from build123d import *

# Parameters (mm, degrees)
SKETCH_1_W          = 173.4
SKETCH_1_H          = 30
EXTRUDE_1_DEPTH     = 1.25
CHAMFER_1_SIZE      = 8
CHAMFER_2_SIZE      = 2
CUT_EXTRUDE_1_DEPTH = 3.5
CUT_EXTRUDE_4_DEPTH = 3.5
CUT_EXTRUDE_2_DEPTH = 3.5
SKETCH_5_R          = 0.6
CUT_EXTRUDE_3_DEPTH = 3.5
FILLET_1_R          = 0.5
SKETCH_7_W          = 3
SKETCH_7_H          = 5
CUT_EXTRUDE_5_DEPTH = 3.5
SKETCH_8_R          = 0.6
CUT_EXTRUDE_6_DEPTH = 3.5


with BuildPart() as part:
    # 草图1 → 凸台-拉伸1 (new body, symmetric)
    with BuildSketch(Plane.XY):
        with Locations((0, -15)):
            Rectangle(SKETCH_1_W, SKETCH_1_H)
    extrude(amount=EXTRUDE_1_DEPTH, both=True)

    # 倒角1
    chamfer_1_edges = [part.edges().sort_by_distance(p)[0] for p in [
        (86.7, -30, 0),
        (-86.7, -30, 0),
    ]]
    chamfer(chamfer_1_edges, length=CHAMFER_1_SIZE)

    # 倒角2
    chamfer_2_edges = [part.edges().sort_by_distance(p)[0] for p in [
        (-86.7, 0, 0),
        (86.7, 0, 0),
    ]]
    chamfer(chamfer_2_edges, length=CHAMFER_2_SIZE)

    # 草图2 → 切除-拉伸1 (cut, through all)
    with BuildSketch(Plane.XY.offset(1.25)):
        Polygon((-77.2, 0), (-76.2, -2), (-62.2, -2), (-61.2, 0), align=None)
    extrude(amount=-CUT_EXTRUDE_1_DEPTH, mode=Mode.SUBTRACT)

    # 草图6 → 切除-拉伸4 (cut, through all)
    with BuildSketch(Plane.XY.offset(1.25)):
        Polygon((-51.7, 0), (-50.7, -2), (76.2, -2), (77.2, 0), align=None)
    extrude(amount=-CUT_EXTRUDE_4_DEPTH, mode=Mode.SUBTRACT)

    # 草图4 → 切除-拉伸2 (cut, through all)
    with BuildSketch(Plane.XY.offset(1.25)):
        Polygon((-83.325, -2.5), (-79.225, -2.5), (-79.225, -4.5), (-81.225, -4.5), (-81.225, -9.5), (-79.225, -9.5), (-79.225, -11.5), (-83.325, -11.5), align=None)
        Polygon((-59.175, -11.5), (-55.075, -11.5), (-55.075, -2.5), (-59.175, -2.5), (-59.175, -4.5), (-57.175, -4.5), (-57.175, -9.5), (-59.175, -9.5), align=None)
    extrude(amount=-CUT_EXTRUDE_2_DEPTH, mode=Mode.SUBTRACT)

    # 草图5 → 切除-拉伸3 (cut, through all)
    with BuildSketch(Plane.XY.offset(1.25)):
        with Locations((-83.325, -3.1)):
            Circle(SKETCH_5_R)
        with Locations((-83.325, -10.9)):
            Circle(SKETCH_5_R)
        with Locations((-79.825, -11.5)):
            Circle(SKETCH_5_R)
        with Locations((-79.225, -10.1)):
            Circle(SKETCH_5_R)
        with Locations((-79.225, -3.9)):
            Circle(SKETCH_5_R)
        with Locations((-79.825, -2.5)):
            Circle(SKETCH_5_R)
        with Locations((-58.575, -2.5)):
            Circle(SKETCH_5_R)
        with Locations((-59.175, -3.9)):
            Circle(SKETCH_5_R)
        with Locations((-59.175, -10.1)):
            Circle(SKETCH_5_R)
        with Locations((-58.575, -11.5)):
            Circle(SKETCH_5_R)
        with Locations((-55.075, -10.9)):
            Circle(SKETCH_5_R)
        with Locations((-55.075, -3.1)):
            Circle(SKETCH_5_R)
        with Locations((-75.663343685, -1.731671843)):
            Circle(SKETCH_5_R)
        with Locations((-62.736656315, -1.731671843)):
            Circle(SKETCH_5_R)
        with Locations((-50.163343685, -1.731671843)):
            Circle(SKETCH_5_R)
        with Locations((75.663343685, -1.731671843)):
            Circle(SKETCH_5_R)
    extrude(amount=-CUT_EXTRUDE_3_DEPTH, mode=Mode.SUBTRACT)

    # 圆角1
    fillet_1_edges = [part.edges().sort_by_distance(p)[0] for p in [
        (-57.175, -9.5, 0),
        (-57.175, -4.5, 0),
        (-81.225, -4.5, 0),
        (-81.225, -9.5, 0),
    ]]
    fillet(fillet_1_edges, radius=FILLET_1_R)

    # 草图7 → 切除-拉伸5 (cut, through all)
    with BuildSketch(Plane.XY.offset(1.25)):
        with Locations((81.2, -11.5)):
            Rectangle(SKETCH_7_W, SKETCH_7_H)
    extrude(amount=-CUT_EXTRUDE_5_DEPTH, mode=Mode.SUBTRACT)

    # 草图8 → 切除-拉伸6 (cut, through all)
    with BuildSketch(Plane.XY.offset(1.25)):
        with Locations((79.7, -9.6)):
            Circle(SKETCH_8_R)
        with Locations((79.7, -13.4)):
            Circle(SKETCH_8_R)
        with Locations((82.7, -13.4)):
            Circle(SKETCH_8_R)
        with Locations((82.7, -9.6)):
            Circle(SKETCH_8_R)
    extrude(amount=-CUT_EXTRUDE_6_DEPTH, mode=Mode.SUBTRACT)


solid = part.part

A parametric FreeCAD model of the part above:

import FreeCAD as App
import Part
import Sketcher

V = App.Vector
Q = App.Units.Quantity


def edges_at(feature, points):
    """Names of the edges that pass closest to the given points."""
    edges = feature.Shape.Edges
    near = lambda p: min(range(len(edges)), key=lambda i: edges[i].distToShape(Part.Vertex(*p))[0])
    return sorted({f"Edge{near(p) + 1}" for p in points})

doc = App.newDocument("Part")
body = doc.addObject("PartDesign::Body", "Body")

sketch1 = body.newObject("Sketcher::SketchObject", "Sketch")
sketch1.AttachmentSupport = (doc.getObject("XY_Plane"), [""])
sketch1.MapMode = "FlatFace"
sketch1.addGeometry([
    Part.LineSegment(V(-87, 0, 0), V(-87, -30, 0)),
    Part.LineSegment(V(-87, -30, 0), V(87, -30, 0)),
    Part.LineSegment(V(87, -30, 0), V(87, 0, 0)),
    Part.LineSegment(V(87, 0, 0), V(-87, 0, 0)),
], False)
sketch1.addConstraint([
    Sketcher.Constraint("Coincident", 0, 2, 1, 1),
    Sketcher.Constraint("Coincident", 1, 2, 2, 1),
    Sketcher.Constraint("Coincident", 2, 2, 3, 1),
    Sketcher.Constraint("Coincident", 3, 2, 0, 1),
    Sketcher.Constraint("Vertical", 0),
    Sketcher.Constraint("Horizontal", 1),
    Sketcher.Constraint("Vertical", 2),
    Sketcher.Constraint("Horizontal", 3),
    Sketcher.Constraint("Symmetric", 2, 2, 3, 2, -1, 1),
    Sketcher.Constraint("DistanceY", 0, 2, 0, 1, Q("30 mm")),
    Sketcher.Constraint("DistanceX", 1, 1, 1, 2, Q("173.4 mm")),
])
pad1 = body.newObject("PartDesign::Pad", "Pad")
pad1.Profile = sketch1
pad1.Length = 2.5
pad1.Midplane = True
doc.recompute()

chamfer = body.newObject("PartDesign::Chamfer", "Chamfer")
chamfer.Base = (pad1, edges_at(pad1, [(86.7, -30, 0), (-86.7, -30, 0)]))
chamfer.Size = 8
doc.recompute()

chamfer2 = body.newObject("PartDesign::Chamfer", "Chamfer001")
chamfer2.Base = (chamfer, edges_at(chamfer, [(-86.7, 0, 0), (86.7, 0, 0)]))
chamfer2.Size = 2

sketch2 = body.newObject("Sketcher::SketchObject", "Sketch001")
sketch2.AttachmentSupport = (doc.getObject("XY_Plane"), [""])
sketch2.MapMode = "FlatFace"
sketch2.AttachmentOffset = App.Placement(V(0, 0, 1.25), App.Rotation())
sketch2.addGeometry([
    Part.LineSegment(V(-77.2, 0, 0), V(-76.2, -2, 0)),
    Part.LineSegment(V(-76.2, -2, 0), V(-62.2, -2, 0)),
    Part.LineSegment(V(-62.2, -2, 0), V(-61.2, 0, 0)),
    Part.LineSegment(V(-61.2, 0, 0), V(-77.2, 0, 0)),
], False)
sketch2.addConstraint([
    Sketcher.Constraint("Coincident", 0, 2, 1, 1),
    Sketcher.Constraint("Coincident", 1, 2, 2, 1),
    Sketcher.Constraint("Coincident", 2, 2, 3, 1),
    Sketcher.Constraint("Coincident", 3, 2, 0, 1),
    Sketcher.Constraint("Horizontal", 1),
    Sketcher.Constraint("Horizontal", 3),
    Sketcher.Constraint("PointOnObject", 2, 2, -1),
    Sketcher.Constraint("Equal", 0, 2),
    Sketcher.Constraint("DistanceX", 1, 1, 1, 2, Q("14 mm")),
    Sketcher.Constraint("DistanceX", 3, 2, 3, 1, Q("16 mm")),
    Sketcher.Constraint("DistanceY", 0, 2, -1, 1, Q("2 mm")),
    Sketcher.Constraint("DistanceX", 0, 2, -1, 1, Q("76.2 mm")),
])
pocket1 = body.newObject("PartDesign::Pocket", "Pocket")
pocket1.Profile = sketch2
pocket1.Type = "ThroughAll"

sketch3 = body.newObject("Sketcher::SketchObject", "Sketch002")
sketch3.AttachmentSupport = (doc.getObject("XY_Plane"), [""])
sketch3.MapMode = "FlatFace"
sketch3.AttachmentOffset = App.Placement(V(0, 0, 1.25), App.Rotation())
sketch3.addGeometry([
    Part.LineSegment(V(-51.7, 0, 0), V(-50.7, -2, 0)),
    Part.LineSegment(V(-50.7, -2, 0), V(76.2, -2, 0)),
    Part.LineSegment(V(76.2, -2, 0), V(77.2, 0, 0)),
    Part.LineSegment(V(77.2, 0, 0), V(-51.7, 0, 0)),
], False)
sketch3.addConstraint([
    Sketcher.Constraint("Coincident", 0, 2, 1, 1),
    Sketcher.Constraint("Coincident", 1, 2, 2, 1),
    Sketcher.Constraint("Coincident", 2, 2, 3, 1),
    Sketcher.Constraint("Coincident", 3, 2, 0, 1),
    Sketcher.Constraint("Horizontal", 1),
    Sketcher.Constraint("Horizontal", 3),
    Sketcher.Constraint("PointOnObject", 2, 2, -1),
    Sketcher.Constraint("Equal", 0, 2),
    Sketcher.Constraint("DistanceX", 1, 1, 1, 2, Q("126.9 mm")),
    Sketcher.Constraint("DistanceX", 3, 2, 3, 1, Q("128.9 mm")),
    Sketcher.Constraint("DistanceY", 0, 2, -1, 1, Q("2 mm")),
    Sketcher.Constraint("DistanceX", 0, 2, -1, 1, Q("50.7 mm")),
])
pocket2 = body.newObject("PartDesign::Pocket", "Pocket001")
pocket2.Profile = sketch3
pocket2.Type = "ThroughAll"

sketch4 = body.newObject("Sketcher::SketchObject", "Sketch003")
sketch4.AttachmentSupport = (doc.getObject("XY_Plane"), [""])
sketch4.MapMode = "FlatFace"
sketch4.AttachmentOffset = App.Placement(V(0, 0, 1.25), App.Rotation())
sketch4.addGeometry([
    Part.LineSegment(V(-79.2, -2.5, 0), V(-83.3, -2.5, 0)),
    Part.LineSegment(V(-83.3, -2.5, 0), V(-83.3, -11.5, 0)),
    Part.LineSegment(V(-83.3, -11.5, 0), V(-79.2, -11.5, 0)),
    Part.LineSegment(V(-79.2, -11.5, 0), V(-79.2, -9.5, 0)),
    Part.LineSegment(V(-79.2, -9.5, 0), V(-81.2, -9.5, 0)),
    Part.LineSegment(V(-81.2, -9.5, 0), V(-81.2, -4.5, 0)),
    Part.LineSegment(V(-81.2, -4.5, 0), V(-79.2, -4.5, 0)),
    Part.LineSegment(V(-79.2, -4.5, 0), V(-79.2, -2.5, 0)),
    Part.LineSegment(V(-59.2, -11.5, 0), V(-55.1, -11.5, 0)),
    Part.LineSegment(V(-55.1, -11.5, 0), V(-55.1, -2.5, 0)),
    Part.LineSegment(V(-55.1, -2.5, 0), V(-59.2, -2.5, 0)),
    Part.LineSegment(V(-59.2, -2.5, 0), V(-59.2, -4.5, 0)),
    Part.LineSegment(V(-59.2, -4.5, 0), V(-57.2, -4.5, 0)),
    Part.LineSegment(V(-57.2, -4.5, 0), V(-57.2, -9.5, 0)),
    Part.LineSegment(V(-57.2, -9.5, 0), V(-59.2, -9.5, 0)),
    Part.LineSegment(V(-59.2, -9.5, 0), V(-59.2, -11.5, 0)),
], False)
sketch4.addConstraint([
    Sketcher.Constraint("Coincident", 0, 2, 1, 1),
    Sketcher.Constraint("Coincident", 1, 2, 2, 1),
    Sketcher.Constraint("Coincident", 2, 2, 3, 1),
    Sketcher.Constraint("Coincident", 3, 2, 4, 1),
    Sketcher.Constraint("Coincident", 4, 2, 5, 1),
    Sketcher.Constraint("Coincident", 5, 2, 6, 1),
    Sketcher.Constraint("Coincident", 6, 2, 7, 1),
    Sketcher.Constraint("Coincident", 7, 2, 0, 1),
    Sketcher.Constraint("Coincident", 8, 2, 9, 1),
    Sketcher.Constraint("Coincident", 9, 2, 10, 1),
    Sketcher.Constraint("Coincident", 10, 2, 11, 1),
    Sketcher.Constraint("Coincident", 11, 2, 12, 1),
    Sketcher.Constraint("Coincident", 12, 2, 13, 1),
    Sketcher.Constraint("Coincident", 13, 2, 14, 1),
    Sketcher.Constraint("Coincident", 14, 2, 15, 1),
    Sketcher.Constraint("Coincident", 15, 2, 8, 1),
    Sketcher.Constraint("Horizontal", 0),
    Sketcher.Constraint("Vertical", 1),
    Sketcher.Constraint("Horizontal", 2),
    Sketcher.Constraint("Vertical", 3),
    Sketcher.Constraint("Horizontal", 4),
    Sketcher.Constraint("Vertical", 5),
    Sketcher.Constraint("Horizontal", 6),
    Sketcher.Constraint("Vertical", 7),
    Sketcher.Constraint("Horizontal", 8),
    Sketcher.Constraint("Vertical", 9),
    Sketcher.Constraint("Horizontal", 10),
    Sketcher.Constraint("Vertical", 11),
    Sketcher.Constraint("Horizontal", 12),
    Sketcher.Constraint("Vertical", 13),
    Sketcher.Constraint("Horizontal", 14),
    Sketcher.Constraint("Vertical", 15),
    Sketcher.Constraint("Horizontal", 2, 2, 8, 2),
    Sketcher.Constraint("Horizontal", 7, 2, 9, 2),
    Sketcher.Constraint("Horizontal", 6, 2, 11, 2),
    Sketcher.Constraint("Horizontal", 4, 2, 13, 2),
    Sketcher.Constraint("Vertical", 3, 2, 6, 2),
    Sketcher.Constraint("Vertical", 11, 2, 14, 2),
    Sketcher.Constraint("Equal", 2, 8),
    Sketcher.Constraint("Equal", 6, 12),
    Sketcher.Constraint("Equal", 14, 3),
    Sketcher.Constraint("Equal", 3, 7),
    Sketcher.Constraint("DistanceX", 4, 2, 4, 1, Q("2 mm")),
    Sketcher.Constraint("DistanceY", 1, 2, 1, 1, Q("9 mm")),
    Sketcher.Constraint("DistanceX", 0, 2, 0, 1, Q("4.1 mm")),
    Sketcher.Constraint("DistanceY", 0, 2, -1, 1, Q("2.5 mm")),
    Sketcher.Constraint("DistanceX", 2, 2, 8, 2, Q("24.15 mm")),
    Sketcher.Constraint("DistanceX", 0, 2, -1, 1, Q("83.325 mm")),
])
pocket3 = body.newObject("PartDesign::Pocket", "Pocket002")
pocket3.Profile = sketch4
pocket3.Type = "ThroughAll"

sketch5 = body.newObject("Sketcher::SketchObject", "Sketch004")
sketch5.AttachmentSupport = (doc.getObject("XY_Plane"), [""])
sketch5.MapMode = "FlatFace"
sketch5.AttachmentOffset = App.Placement(V(0, 0, 1.25), App.Rotation())
sketch5.addGeometry([
    Part.Circle(V(-83.3, -3.1, 0), V(0, 0, 1), 0.6),
    Part.Circle(V(-83.3, -10.9, 0), V(0, 0, 1), 0.6),
    Part.Circle(V(-79.8, -11.5, 0), V(0, 0, 1), 0.6),
    Part.Circle(V(-79.2, -10.1, 0), V(0, 0, 1), 0.6),
    Part.Circle(V(-79.2, -3.9, 0), V(0, 0, 1), 0.6),
    Part.Circle(V(-79.8, -2.5, 0), V(0, 0, 1), 0.6),
    Part.Circle(V(-58.6, -2.5, 0), V(0, 0, 1), 0.6),
    Part.Circle(V(-59.2, -3.9, 0), V(0, 0, 1), 0.6),
    Part.Circle(V(-59.2, -10.1, 0), V(0, 0, 1), 0.6),
    Part.Circle(V(-58.6, -11.5, 0), V(0, 0, 1), 0.6),
    Part.Circle(V(-55.1, -10.9, 0), V(0, 0, 1), 0.6),
    Part.Circle(V(-55.1, -3.1, 0), V(0, 0, 1), 0.6),
    Part.Circle(V(-75.7, -1.7, 0), V(0, 0, 1), 0.6),
    Part.Circle(V(-62.7, -1.7, 0), V(0, 0, 1), 0.6),
    Part.Circle(V(-50.2, -1.7, 0), V(0, 0, 1), 0.6),
    Part.Circle(V(75.7, -1.7, 0), V(0, 0, 1), 0.6),
], False)
sketch5.addConstraint([
    Sketcher.Constraint("Equal", 0, 1),
    Sketcher.Constraint("Equal", 1, 2),
    Sketcher.Constraint("Equal", 2, 3),
    Sketcher.Constraint("Equal", 3, 4),
    Sketcher.Constraint("Equal", 4, 5),
    Sketcher.Constraint("Equal", 5, 6),
    Sketcher.Constraint("Equal", 6, 7),
    Sketcher.Constraint("Equal", 7, 8),
    Sketcher.Constraint("Equal", 8, 9),
    Sketcher.Constraint("Equal", 9, 10),
    Sketcher.Constraint("Equal", 10, 11),
    Sketcher.Constraint("Equal", 11, 12),
    Sketcher.Constraint("Equal", 12, 13),
    Sketcher.Constraint("Equal", 13, 14),
    Sketcher.Constraint("Equal", 14, 15),
    Sketcher.Constraint("Symmetric", 12, 3, 15, 3, -2),
    Sketcher.Constraint("Horizontal", 5, 3, 6, 3),
    Sketcher.Constraint("Horizontal", 4, 3, 7, 3),
    Sketcher.Constraint("Horizontal", 3, 3, 8, 3),
    Sketcher.Constraint("Horizontal", 2, 3, 9, 3),
    Sketcher.Constraint("Horizontal", 1, 3, 10, 3),
    Sketcher.Constraint("Horizontal", 0, 3, 11, 3),
    Sketcher.Constraint("Horizontal", 12, 3, 13, 3),
    Sketcher.Constraint("Horizontal", 13, 3, 14, 3),
    Sketcher.Constraint("Vertical", 0, 3, 1, 3),
    Sketcher.Constraint("Vertical", 3, 3, 4, 3),
    Sketcher.Constraint("Vertical", 2, 3, 5, 3),
    Sketcher.Constraint("Vertical", 7, 3, 8, 3),
    Sketcher.Constraint("Vertical", 6, 3, 9, 3),
    Sketcher.Constraint("Vertical", 10, 3, 11, 3),
    Sketcher.Constraint("Diameter", 0, Q("1.2 mm")),
    Sketcher.Constraint("DistanceY", 3, 3, 0, 3, Q("7 mm")),
    Sketcher.Constraint("DistanceY", 1, 3, 4, 3, Q("7 mm")),
    Sketcher.Constraint("DistanceY", 2, 3, 5, 3, Q("9 mm")),
    Sketcher.Constraint("DistanceY", 0, 3, -1, 1, Q("3.1 mm")),
    Sketcher.Constraint("DistanceY", 1, 3, -1, 1, Q("10.9 mm")),
    Sketcher.Constraint("DistanceY", 2, 3, -1, 1, Q("11.5 mm")),
    Sketcher.Constraint("DistanceX", 1, 3, 2, 3, Q("3.5 mm")),
    Sketcher.Constraint("DistanceX", 2, 3, 3, 3, Q("0.6 mm")),
    Sketcher.Constraint("DistanceX", 7, 3, 6, 3, Q("0.6 mm")),
    Sketcher.Constraint("DistanceX", 9, 3, 10, 3, Q("3.5 mm")),
    Sketcher.Constraint("DistanceX", 4, 3, 6, 3, Q("20.65 mm")),
    Sketcher.Constraint("DistanceX", 0, 3, -1, 1, Q("83.325 mm")),
    Sketcher.Constraint("DistanceY", 12, 3, -1, 1, Q("1.731672 mm")),
    Sketcher.Constraint("DistanceX", 12, 3, -1, 1, Q("75.663344 mm")),
    Sketcher.Constraint("DistanceX", 13, 3, -1, 1, Q("62.736656 mm")),
    Sketcher.Constraint("DistanceX", 14, 3, -1, 1, Q("50.163344 mm")),
])
pocket4 = body.newObject("PartDesign::Pocket", "Pocket003")
pocket4.Profile = sketch5
pocket4.Type = "ThroughAll"
doc.recompute()

fillet = body.newObject("PartDesign::Fillet", "Fillet")
fillet.Base = (pocket4, edges_at(pocket4, [
    (-57.175, -9.5, 0),
    (-57.175, -4.5, 0),
    (-81.225, -4.5, 0),
    (-81.225, -9.5, 0),
]))
fillet.Radius = 0.5

sketch6 = body.newObject("Sketcher::SketchObject", "Sketch005")
sketch6.AttachmentSupport = (doc.getObject("XY_Plane"), [""])
sketch6.MapMode = "FlatFace"
sketch6.AttachmentOffset = App.Placement(V(0, 0, 1.25), App.Rotation())
sketch6.addGeometry([
    Part.LineSegment(V(79.7, -9, 0), V(79.7, -14, 0)),
    Part.LineSegment(V(79.7, -14, 0), V(82.7, -14, 0)),
    Part.LineSegment(V(82.7, -14, 0), V(82.7, -9, 0)),
    Part.LineSegment(V(82.7, -9, 0), V(79.7, -9, 0)),
], False)
sketch6.addConstraint([
    Sketcher.Constraint("Coincident", 0, 2, 1, 1),
    Sketcher.Constraint("Coincident", 1, 2, 2, 1),
    Sketcher.Constraint("Coincident", 2, 2, 3, 1),
    Sketcher.Constraint("Coincident", 3, 2, 0, 1),
    Sketcher.Constraint("Vertical", 0),
    Sketcher.Constraint("Horizontal", 1),
    Sketcher.Constraint("Vertical", 2),
    Sketcher.Constraint("Horizontal", 3),
    Sketcher.Constraint("DistanceX", 1, 1, 1, 2, Q("3 mm")),
    Sketcher.Constraint("DistanceY", 0, 2, 0, 1, Q("5 mm")),
    Sketcher.Constraint("DistanceY", 0, 2, -1, 1, Q("14 mm")),
    Sketcher.Constraint("DistanceX", -1, 1, 0, 2, Q("79.7 mm")),
])
pocket5 = body.newObject("PartDesign::Pocket", "Pocket004")
pocket5.Profile = sketch6
pocket5.Type = "ThroughAll"

sketch7 = body.newObject("Sketcher::SketchObject", "Sketch006")
sketch7.AttachmentSupport = (doc.getObject("XY_Plane"), [""])
sketch7.MapMode = "FlatFace"
sketch7.AttachmentOffset = App.Placement(V(0, 0, 1.25), App.Rotation())
sketch7.addGeometry([
    Part.Circle(V(79.7, -9.6, 0), V(0, 0, 1), 0.6),
    Part.Circle(V(79.7, -13.4, 0), V(0, 0, 1), 0.6),
    Part.Circle(V(82.7, -13.4, 0), V(0, 0, 1), 0.6),
    Part.Circle(V(82.7, -9.6, 0), V(0, 0, 1), 0.6),
], False)
sketch7.addConstraint([
    Sketcher.Constraint("Equal", 0, 1),
    Sketcher.Constraint("Equal", 1, 2),
    Sketcher.Constraint("Equal", 2, 3),
    Sketcher.Constraint("Horizontal", 1, 3, 2, 3),
    Sketcher.Constraint("Horizontal", 0, 3, 3, 3),
    Sketcher.Constraint("Vertical", 0, 3, 1, 3),
    Sketcher.Constraint("Vertical", 2, 3, 3, 3),
    Sketcher.Constraint("Diameter", 0, Q("1.2 mm")),
    Sketcher.Constraint("DistanceX", 1, 3, 2, 3, Q("3 mm")),
    Sketcher.Constraint("DistanceX", -1, 1, 0, 3, Q("79.7 mm")),
    Sketcher.Constraint("DistanceY", 0, 3, -1, 1, Q("9.6 mm")),
    Sketcher.Constraint("DistanceY", 1, 3, -1, 1, Q("13.4 mm")),
])
pocket6 = body.newObject("PartDesign::Pocket", "Pocket005")
pocket6.Profile = sketch7
pocket6.Type = "ThroughAll"

doc.recompute()
